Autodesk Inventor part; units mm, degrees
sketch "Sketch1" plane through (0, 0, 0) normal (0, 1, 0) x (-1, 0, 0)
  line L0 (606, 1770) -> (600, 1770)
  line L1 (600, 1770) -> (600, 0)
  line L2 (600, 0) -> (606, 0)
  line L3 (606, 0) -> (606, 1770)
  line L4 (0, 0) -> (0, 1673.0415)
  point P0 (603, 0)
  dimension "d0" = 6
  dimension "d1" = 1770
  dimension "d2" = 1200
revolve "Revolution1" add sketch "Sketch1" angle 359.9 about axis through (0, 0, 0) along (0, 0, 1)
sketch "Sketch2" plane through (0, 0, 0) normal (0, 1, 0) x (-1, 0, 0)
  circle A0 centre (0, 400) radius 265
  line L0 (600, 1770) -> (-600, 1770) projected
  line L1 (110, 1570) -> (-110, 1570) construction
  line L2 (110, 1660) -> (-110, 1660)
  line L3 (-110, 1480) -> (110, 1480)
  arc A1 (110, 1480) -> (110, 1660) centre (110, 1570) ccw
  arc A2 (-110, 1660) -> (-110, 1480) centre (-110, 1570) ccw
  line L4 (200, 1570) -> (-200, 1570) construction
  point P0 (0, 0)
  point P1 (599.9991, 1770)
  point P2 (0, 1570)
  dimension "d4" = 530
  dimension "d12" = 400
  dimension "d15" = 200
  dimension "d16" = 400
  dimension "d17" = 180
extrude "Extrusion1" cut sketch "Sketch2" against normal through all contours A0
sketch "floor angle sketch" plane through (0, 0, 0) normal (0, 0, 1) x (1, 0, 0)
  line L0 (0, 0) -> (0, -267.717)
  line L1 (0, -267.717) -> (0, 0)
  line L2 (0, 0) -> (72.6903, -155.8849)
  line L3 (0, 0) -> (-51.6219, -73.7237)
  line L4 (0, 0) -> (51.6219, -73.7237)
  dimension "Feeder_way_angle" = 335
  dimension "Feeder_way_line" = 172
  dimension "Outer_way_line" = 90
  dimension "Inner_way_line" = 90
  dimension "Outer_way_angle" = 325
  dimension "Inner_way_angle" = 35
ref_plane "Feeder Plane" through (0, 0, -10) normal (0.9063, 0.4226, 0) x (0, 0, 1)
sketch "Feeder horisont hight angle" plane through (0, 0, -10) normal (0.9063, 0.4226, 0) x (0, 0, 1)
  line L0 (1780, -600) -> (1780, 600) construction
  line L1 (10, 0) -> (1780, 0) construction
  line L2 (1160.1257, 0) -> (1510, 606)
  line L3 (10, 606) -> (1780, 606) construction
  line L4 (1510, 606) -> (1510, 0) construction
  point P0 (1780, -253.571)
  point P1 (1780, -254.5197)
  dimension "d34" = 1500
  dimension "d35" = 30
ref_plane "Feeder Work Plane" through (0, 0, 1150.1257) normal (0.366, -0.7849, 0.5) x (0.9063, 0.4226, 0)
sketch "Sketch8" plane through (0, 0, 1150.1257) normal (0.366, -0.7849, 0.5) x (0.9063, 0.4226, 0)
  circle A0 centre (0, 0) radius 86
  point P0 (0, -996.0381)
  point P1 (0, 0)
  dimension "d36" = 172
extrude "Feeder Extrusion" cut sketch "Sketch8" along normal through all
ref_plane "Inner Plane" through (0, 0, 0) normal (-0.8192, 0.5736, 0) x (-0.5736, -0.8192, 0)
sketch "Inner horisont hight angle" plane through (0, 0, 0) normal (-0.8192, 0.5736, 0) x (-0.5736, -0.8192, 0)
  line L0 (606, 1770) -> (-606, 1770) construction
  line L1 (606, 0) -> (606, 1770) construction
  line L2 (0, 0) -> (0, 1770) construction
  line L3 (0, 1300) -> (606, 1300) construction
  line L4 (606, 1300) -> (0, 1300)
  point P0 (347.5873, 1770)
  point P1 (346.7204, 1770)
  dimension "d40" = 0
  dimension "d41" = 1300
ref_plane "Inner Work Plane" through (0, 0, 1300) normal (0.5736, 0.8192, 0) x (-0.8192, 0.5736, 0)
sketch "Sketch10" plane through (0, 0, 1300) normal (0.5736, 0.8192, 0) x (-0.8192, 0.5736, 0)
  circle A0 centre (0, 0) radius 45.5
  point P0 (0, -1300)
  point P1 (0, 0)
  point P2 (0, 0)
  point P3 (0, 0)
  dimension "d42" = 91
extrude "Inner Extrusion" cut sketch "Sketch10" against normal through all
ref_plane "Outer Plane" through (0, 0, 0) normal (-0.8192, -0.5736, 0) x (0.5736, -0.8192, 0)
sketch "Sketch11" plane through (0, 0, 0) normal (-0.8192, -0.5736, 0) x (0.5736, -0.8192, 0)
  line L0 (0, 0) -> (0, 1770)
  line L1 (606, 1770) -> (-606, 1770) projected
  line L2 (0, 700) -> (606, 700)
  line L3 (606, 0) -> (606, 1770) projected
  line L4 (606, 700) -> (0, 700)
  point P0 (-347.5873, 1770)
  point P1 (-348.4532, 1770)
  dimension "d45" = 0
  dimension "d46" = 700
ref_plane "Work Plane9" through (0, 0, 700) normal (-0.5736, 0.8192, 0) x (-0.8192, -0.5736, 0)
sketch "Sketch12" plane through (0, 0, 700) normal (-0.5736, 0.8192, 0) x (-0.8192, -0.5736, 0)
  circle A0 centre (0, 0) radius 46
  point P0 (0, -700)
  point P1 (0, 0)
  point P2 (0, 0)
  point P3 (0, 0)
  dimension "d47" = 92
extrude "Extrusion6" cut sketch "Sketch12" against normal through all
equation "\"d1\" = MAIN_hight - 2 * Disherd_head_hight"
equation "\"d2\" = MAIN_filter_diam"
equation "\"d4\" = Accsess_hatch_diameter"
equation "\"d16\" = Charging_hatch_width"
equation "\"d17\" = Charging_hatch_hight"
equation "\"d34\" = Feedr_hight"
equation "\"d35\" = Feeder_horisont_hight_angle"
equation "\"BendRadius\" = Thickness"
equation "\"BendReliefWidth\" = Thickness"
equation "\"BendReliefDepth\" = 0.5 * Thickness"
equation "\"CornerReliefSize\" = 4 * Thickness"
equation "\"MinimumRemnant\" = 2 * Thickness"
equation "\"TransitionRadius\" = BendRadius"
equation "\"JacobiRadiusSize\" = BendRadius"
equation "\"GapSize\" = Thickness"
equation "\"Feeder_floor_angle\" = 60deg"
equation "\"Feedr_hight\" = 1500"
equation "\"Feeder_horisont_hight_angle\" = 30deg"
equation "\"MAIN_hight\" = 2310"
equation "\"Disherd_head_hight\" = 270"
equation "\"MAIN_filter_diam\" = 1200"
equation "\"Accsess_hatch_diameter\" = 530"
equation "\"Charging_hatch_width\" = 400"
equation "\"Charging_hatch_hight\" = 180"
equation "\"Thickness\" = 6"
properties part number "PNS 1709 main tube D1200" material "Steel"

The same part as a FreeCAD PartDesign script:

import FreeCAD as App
import Part
import Sketcher

doc = App.newDocument("Part")
params = doc.addObject("Spreadsheet::Sheet", "Params")
for row, (alias, value) in enumerate([
    ("sketch1_width", "6 mm"),
    ("sketch1_height", "1770 mm"),
    ("revolution_angle", "359.9 deg"),
    ("sketch2_diameter", "530 mm"),
    ("sketch3_diameter", "172 mm"),
    ("sketch4_diameter", "91 mm"),
    ("sketch5_diameter", "92 mm"),
], start=1):
    params.set(f"A{row}", alias)
    params.set(f"B{row}", "=" + value)
    params.setAlias(f"B{row}", alias)

body = doc.addObject("PartDesign::Body", "Body")

# Sketch on XZ plane
sketch1 = body.newObject("Sketcher::SketchObject", "Sketch")
sketch1.AttachmentSupport = (doc.getObject("XZ_Plane"), [""])
sketch1.MapMode = "FlatFace"
sketch1.addGeometry(Part.LineSegment(App.Vector(-606, 0, 0), App.Vector(-606, 1770, 0)), False)
sketch1.addGeometry(Part.LineSegment(App.Vector(-606, 1770, 0), App.Vector(-600, 1770, 0)), False)
sketch1.addGeometry(Part.LineSegment(App.Vector(-600, 1770, 0), App.Vector(-600, 0, 0)), False)
sketch1.addGeometry(Part.LineSegment(App.Vector(-600, 0, 0), App.Vector(-606, 0, 0)), False)
sketch1.addConstraint(Sketcher.Constraint("Coincident", 0, 2, 1, 1))
sketch1.addConstraint(Sketcher.Constraint("Coincident", 1, 2, 2, 1))
sketch1.addConstraint(Sketcher.Constraint("Coincident", 2, 2, 3, 1))
sketch1.addConstraint(Sketcher.Constraint("Coincident", 3, 2, 0, 1))
sketch1.addConstraint(Sketcher.Constraint("Vertical", 0))
sketch1.addConstraint(Sketcher.Constraint("Horizontal", 1))
sketch1.addConstraint(Sketcher.Constraint("Vertical", 2))
sketch1.addConstraint(Sketcher.Constraint("Horizontal", 3))
sketch1.addConstraint(Sketcher.Constraint("PointOnObject", 2, 2, -1))
sketch1.addConstraint(Sketcher.Constraint("DistanceX", 1, 1, 1, 2, 6.0))
sketch1.addConstraint(Sketcher.Constraint("DistanceY", 0, 1, 0, 2, 1770.0))
sketch1.addConstraint(Sketcher.Constraint("DistanceX", 0, 2, -1, 1, 606.0))
sketch1.setExpression("Constraints[9]", "Params.sketch1_width")
sketch1.setExpression("Constraints[10]", "Params.sketch1_height")
revolution = body.newObject("PartDesign::Revolution", "Revolution")
revolution.Profile = sketch1
revolution.ReferenceAxis = (sketch1, ["V_Axis"])
revolution.setExpression("Angle", "Params.revolution_angle")

# Sketch on XZ plane
sketch2 = body.newObject("Sketcher::SketchObject", "Sketch001")
sketch2.AttachmentSupport = (doc.getObject("XZ_Plane"), [""])
sketch2.MapMode = "FlatFace"
sketch2.addGeometry(Part.Circle(App.Vector(0, 400, 0), App.Vector(0, 0, 1), 265), False)
sketch2.addConstraint(Sketcher.Constraint("PointOnObject", 0, 3, -2))
sketch2.addConstraint(Sketcher.Constraint("Diameter", 0, 530.0))
sketch2.addConstraint(Sketcher.Constraint("DistanceY", -1, 1, 0, 3, 400.0))
sketch2.setExpression("Constraints[1]", "Params.sketch2_diameter")
pocket1 = body.newObject("PartDesign::Pocket", "Pocket")
pocket1.Profile = sketch2
pocket1.Type = "ThroughAll"
pocket1.Reversed = True

# Sketch on an angled plane
sketch3 = body.newObject("Sketcher::SketchObject", "Sketch002")
sketch3.Placement = App.Placement(App.Vector(0, 0, 1150.1257), App.Rotation(App.Vector(0.906309406, 0.42261479, 0.000002212), App.Vector(-0.211306595, 0.453148454, 0.866028869), App.Vector(0.365995606, -0.784890577, 0.499993998), "ZXY"))
sketch3.addGeometry(Part.Circle(App.Vector(0, 0, 0), App.Vector(0, 0, 1), 86), False)
sketch3.addConstraint(Sketcher.Constraint("Coincident", 0, 3, -1, 1))
sketch3.addConstraint(Sketcher.Constraint("Diameter", 0, 172.0))
sketch3.setExpression("Constraints[1]", "Params.sketch3_diameter")
pocket2 = body.newObject("PartDesign::Pocket", "Pocket001")
pocket2.Profile = sketch3
pocket2.Type = "ThroughAll"
pocket2.Reversed = True

# Sketch on an angled plane
sketch4 = body.newObject("Sketcher::SketchObject", "Sketch003")
sketch4.Placement = App.Placement(App.Vector(0, 0, 1300), App.Rotation(App.Vector(-0.819152044, 0.573576436, 0), App.Vector(0, 0, 0.999999999), App.Vector(0.573576436, 0.819152044, 0), "ZXY"))
sketch4.addGeometry(Part.Circle(App.Vector(0, 0, 0), App.Vector(0, 0, 1), 46), False)
sketch4.addConstraint(Sketcher.Constraint("Coincident", 0, 3, -1, 1))
sketch4.addConstraint(Sketcher.Constraint("Diameter", 0, 91.0))
sketch4.setExpression("Constraints[1]", "Params.sketch4_diameter")
pocket3 = body.newObject("PartDesign::Pocket", "Pocket002")
pocket3.Profile = sketch4
pocket3.Type = "ThroughAll"

# Sketch on an angled plane
sketch5 = body.newObject("Sketcher::SketchObject", "Sketch004")
sketch5.Placement = App.Placement(App.Vector(0, 0, 700), App.Rotation(App.Vector(-0.819152044, -0.573576436, 0), App.Vector(0, 0, 0.999999999), App.Vector(-0.573576436, 0.819152044, 0), "ZXY"))
sketch5.addGeometry(Part.Circle(App.Vector(0, 0, 0), App.Vector(0, 0, 1), 46), False)
sketch5.addConstraint(Sketcher.Constraint("Coincident", 0, 3, -1, 1))
sketch5.addConstraint(Sketcher.Constraint("Diameter", 0, 92.0))
sketch5.setExpression("Constraints[1]", "Params.sketch5_diameter")
pocket4 = body.newObject("PartDesign::Pocket", "Pocket003")
pocket4.Profile = sketch5
pocket4.Type = "ThroughAll"

doc.recompute()
